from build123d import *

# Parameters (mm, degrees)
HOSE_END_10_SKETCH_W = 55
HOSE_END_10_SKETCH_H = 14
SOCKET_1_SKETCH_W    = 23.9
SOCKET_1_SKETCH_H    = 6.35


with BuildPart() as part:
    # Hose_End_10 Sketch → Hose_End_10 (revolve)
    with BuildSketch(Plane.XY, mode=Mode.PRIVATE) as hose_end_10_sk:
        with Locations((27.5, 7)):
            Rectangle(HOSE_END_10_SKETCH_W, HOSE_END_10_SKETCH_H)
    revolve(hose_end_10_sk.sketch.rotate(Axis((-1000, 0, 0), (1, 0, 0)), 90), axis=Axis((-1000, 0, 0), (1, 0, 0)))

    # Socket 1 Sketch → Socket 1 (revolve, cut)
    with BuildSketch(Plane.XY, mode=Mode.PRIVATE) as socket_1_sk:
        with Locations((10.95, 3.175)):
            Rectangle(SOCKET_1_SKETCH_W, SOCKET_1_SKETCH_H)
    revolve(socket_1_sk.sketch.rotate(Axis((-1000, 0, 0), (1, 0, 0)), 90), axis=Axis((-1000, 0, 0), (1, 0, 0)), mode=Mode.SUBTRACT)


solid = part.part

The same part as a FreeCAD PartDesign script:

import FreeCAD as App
import Part
import Sketcher

V = App.Vector

doc = App.newDocument("Part")
body = doc.addObject("PartDesign::Body", "Body")

# Sketch on XY plane
sketch1 = doc.addObject("Sketcher::SketchObject", "Sketch")
body.addObject(sketch1)
sketch1.AttachmentSupport = (doc.XY_Plane, [""])
sketch1.MapMode = "FlatFace"
sketch1.addGeometry(Part.LineSegment(V(0, 14, 0), V(0, 0, 0)), False)
sketch1.addGeometry(Part.LineSegment(V(0, 0, 0), V(55, 0, 0)), False)
sketch1.addGeometry(Part.LineSegment(V(55, 0, 0), V(55, 14, 0)), False)
sketch1.addGeometry(Part.LineSegment(V(55, 14, 0), V(0, 14, 0)), False)
sketch1.addConstraint(Sketcher.Constraint("Coincident", 0, 2, 1, 1))
sketch1.addConstraint(Sketcher.Constraint("Coincident", 1, 2, 2, 1))
sketch1.addConstraint(Sketcher.Constraint("Coincident", 2, 2, 3, 1))
sketch1.addConstraint(Sketcher.Constraint("Coincident", 3, 2, 0, 1))
sketch1.addConstraint(Sketcher.Constraint("Vertical", 0))
sketch1.addConstraint(Sketcher.Constraint("Horizontal", 1))
sketch1.addConstraint(Sketcher.Constraint("Vertical", 2))
sketch1.addConstraint(Sketcher.Constraint("Horizontal", 3))
sketch1.addConstraint(Sketcher.Constraint("Coincident", 0, 2, -1, 1))
sketch1.addConstraint(Sketcher.Constraint("DistanceX", 1, 1, 1, 2, 55.0))
sketch1.addConstraint(Sketcher.Constraint("DistanceY", 0, 2, 0, 1, 14.0))
revolution = doc.addObject("PartDesign::Revolution", "Revolution")
body.addObject(revolution)
revolution.Profile = sketch1
revolution.ReferenceAxis = (sketch1, ["H_Axis"])
revolution.Angle = 360

# Sketch on XY plane
sketch2 = doc.addObject("Sketcher::SketchObject", "Sketch001")
body.addObject(sketch2)
sketch2.AttachmentSupport = (doc.XY_Plane, [""])
sketch2.MapMode = "FlatFace"
sketch2.addGeometry(Part.LineSegment(V(-1, 6, 0), V(-1, 0, 0)), False)
sketch2.addGeometry(Part.LineSegment(V(-1, 0, 0), V(23, 0, 0)), False)
sketch2.addGeometry(Part.LineSegment(V(23, 0, 0), V(23, 6, 0)), False)
sketch2.addGeometry(Part.LineSegment(V(23, 6, 0), V(-1, 6, 0)), False)
sketch2.addConstraint(Sketcher.Constraint("Coincident", 0, 2, 1, 1))
sketch2.addConstraint(Sketcher.Constraint("Coincident", 1, 2, 2, 1))
sketch2.addConstraint(Sketcher.Constraint("Coincident", 2, 2, 3, 1))
sketch2.addConstraint(Sketcher.Constraint("Coincident", 3, 2, 0, 1))
sketch2.addConstraint(Sketcher.Constraint("Vertical", 0))
sketch2.addConstraint(Sketcher.Constraint("Horizontal", 1))
sketch2.addConstraint(Sketcher.Constraint("Vertical", 2))
sketch2.addConstraint(Sketcher.Constraint("Horizontal", 3))
sketch2.addConstraint(Sketcher.Constraint("PointOnObject", 0, 2, -1))
sketch2.addConstraint(Sketcher.Constraint("DistanceX", 1, 1, 1, 2, 23.9))
sketch2.addConstraint(Sketcher.Constraint("DistanceX", 0, 2, -1, 1, 1.0))
sketch2.addConstraint(Sketcher.Constraint("DistanceY", 0, 2, 0, 1, 6.35))
groove = doc.addObject("PartDesign::Groove", "Groove")
body.addObject(groove)
groove.Profile = sketch2
groove.ReferenceAxis = (sketch2, ["H_Axis"])
groove.Angle = 360

doc.recompute()
